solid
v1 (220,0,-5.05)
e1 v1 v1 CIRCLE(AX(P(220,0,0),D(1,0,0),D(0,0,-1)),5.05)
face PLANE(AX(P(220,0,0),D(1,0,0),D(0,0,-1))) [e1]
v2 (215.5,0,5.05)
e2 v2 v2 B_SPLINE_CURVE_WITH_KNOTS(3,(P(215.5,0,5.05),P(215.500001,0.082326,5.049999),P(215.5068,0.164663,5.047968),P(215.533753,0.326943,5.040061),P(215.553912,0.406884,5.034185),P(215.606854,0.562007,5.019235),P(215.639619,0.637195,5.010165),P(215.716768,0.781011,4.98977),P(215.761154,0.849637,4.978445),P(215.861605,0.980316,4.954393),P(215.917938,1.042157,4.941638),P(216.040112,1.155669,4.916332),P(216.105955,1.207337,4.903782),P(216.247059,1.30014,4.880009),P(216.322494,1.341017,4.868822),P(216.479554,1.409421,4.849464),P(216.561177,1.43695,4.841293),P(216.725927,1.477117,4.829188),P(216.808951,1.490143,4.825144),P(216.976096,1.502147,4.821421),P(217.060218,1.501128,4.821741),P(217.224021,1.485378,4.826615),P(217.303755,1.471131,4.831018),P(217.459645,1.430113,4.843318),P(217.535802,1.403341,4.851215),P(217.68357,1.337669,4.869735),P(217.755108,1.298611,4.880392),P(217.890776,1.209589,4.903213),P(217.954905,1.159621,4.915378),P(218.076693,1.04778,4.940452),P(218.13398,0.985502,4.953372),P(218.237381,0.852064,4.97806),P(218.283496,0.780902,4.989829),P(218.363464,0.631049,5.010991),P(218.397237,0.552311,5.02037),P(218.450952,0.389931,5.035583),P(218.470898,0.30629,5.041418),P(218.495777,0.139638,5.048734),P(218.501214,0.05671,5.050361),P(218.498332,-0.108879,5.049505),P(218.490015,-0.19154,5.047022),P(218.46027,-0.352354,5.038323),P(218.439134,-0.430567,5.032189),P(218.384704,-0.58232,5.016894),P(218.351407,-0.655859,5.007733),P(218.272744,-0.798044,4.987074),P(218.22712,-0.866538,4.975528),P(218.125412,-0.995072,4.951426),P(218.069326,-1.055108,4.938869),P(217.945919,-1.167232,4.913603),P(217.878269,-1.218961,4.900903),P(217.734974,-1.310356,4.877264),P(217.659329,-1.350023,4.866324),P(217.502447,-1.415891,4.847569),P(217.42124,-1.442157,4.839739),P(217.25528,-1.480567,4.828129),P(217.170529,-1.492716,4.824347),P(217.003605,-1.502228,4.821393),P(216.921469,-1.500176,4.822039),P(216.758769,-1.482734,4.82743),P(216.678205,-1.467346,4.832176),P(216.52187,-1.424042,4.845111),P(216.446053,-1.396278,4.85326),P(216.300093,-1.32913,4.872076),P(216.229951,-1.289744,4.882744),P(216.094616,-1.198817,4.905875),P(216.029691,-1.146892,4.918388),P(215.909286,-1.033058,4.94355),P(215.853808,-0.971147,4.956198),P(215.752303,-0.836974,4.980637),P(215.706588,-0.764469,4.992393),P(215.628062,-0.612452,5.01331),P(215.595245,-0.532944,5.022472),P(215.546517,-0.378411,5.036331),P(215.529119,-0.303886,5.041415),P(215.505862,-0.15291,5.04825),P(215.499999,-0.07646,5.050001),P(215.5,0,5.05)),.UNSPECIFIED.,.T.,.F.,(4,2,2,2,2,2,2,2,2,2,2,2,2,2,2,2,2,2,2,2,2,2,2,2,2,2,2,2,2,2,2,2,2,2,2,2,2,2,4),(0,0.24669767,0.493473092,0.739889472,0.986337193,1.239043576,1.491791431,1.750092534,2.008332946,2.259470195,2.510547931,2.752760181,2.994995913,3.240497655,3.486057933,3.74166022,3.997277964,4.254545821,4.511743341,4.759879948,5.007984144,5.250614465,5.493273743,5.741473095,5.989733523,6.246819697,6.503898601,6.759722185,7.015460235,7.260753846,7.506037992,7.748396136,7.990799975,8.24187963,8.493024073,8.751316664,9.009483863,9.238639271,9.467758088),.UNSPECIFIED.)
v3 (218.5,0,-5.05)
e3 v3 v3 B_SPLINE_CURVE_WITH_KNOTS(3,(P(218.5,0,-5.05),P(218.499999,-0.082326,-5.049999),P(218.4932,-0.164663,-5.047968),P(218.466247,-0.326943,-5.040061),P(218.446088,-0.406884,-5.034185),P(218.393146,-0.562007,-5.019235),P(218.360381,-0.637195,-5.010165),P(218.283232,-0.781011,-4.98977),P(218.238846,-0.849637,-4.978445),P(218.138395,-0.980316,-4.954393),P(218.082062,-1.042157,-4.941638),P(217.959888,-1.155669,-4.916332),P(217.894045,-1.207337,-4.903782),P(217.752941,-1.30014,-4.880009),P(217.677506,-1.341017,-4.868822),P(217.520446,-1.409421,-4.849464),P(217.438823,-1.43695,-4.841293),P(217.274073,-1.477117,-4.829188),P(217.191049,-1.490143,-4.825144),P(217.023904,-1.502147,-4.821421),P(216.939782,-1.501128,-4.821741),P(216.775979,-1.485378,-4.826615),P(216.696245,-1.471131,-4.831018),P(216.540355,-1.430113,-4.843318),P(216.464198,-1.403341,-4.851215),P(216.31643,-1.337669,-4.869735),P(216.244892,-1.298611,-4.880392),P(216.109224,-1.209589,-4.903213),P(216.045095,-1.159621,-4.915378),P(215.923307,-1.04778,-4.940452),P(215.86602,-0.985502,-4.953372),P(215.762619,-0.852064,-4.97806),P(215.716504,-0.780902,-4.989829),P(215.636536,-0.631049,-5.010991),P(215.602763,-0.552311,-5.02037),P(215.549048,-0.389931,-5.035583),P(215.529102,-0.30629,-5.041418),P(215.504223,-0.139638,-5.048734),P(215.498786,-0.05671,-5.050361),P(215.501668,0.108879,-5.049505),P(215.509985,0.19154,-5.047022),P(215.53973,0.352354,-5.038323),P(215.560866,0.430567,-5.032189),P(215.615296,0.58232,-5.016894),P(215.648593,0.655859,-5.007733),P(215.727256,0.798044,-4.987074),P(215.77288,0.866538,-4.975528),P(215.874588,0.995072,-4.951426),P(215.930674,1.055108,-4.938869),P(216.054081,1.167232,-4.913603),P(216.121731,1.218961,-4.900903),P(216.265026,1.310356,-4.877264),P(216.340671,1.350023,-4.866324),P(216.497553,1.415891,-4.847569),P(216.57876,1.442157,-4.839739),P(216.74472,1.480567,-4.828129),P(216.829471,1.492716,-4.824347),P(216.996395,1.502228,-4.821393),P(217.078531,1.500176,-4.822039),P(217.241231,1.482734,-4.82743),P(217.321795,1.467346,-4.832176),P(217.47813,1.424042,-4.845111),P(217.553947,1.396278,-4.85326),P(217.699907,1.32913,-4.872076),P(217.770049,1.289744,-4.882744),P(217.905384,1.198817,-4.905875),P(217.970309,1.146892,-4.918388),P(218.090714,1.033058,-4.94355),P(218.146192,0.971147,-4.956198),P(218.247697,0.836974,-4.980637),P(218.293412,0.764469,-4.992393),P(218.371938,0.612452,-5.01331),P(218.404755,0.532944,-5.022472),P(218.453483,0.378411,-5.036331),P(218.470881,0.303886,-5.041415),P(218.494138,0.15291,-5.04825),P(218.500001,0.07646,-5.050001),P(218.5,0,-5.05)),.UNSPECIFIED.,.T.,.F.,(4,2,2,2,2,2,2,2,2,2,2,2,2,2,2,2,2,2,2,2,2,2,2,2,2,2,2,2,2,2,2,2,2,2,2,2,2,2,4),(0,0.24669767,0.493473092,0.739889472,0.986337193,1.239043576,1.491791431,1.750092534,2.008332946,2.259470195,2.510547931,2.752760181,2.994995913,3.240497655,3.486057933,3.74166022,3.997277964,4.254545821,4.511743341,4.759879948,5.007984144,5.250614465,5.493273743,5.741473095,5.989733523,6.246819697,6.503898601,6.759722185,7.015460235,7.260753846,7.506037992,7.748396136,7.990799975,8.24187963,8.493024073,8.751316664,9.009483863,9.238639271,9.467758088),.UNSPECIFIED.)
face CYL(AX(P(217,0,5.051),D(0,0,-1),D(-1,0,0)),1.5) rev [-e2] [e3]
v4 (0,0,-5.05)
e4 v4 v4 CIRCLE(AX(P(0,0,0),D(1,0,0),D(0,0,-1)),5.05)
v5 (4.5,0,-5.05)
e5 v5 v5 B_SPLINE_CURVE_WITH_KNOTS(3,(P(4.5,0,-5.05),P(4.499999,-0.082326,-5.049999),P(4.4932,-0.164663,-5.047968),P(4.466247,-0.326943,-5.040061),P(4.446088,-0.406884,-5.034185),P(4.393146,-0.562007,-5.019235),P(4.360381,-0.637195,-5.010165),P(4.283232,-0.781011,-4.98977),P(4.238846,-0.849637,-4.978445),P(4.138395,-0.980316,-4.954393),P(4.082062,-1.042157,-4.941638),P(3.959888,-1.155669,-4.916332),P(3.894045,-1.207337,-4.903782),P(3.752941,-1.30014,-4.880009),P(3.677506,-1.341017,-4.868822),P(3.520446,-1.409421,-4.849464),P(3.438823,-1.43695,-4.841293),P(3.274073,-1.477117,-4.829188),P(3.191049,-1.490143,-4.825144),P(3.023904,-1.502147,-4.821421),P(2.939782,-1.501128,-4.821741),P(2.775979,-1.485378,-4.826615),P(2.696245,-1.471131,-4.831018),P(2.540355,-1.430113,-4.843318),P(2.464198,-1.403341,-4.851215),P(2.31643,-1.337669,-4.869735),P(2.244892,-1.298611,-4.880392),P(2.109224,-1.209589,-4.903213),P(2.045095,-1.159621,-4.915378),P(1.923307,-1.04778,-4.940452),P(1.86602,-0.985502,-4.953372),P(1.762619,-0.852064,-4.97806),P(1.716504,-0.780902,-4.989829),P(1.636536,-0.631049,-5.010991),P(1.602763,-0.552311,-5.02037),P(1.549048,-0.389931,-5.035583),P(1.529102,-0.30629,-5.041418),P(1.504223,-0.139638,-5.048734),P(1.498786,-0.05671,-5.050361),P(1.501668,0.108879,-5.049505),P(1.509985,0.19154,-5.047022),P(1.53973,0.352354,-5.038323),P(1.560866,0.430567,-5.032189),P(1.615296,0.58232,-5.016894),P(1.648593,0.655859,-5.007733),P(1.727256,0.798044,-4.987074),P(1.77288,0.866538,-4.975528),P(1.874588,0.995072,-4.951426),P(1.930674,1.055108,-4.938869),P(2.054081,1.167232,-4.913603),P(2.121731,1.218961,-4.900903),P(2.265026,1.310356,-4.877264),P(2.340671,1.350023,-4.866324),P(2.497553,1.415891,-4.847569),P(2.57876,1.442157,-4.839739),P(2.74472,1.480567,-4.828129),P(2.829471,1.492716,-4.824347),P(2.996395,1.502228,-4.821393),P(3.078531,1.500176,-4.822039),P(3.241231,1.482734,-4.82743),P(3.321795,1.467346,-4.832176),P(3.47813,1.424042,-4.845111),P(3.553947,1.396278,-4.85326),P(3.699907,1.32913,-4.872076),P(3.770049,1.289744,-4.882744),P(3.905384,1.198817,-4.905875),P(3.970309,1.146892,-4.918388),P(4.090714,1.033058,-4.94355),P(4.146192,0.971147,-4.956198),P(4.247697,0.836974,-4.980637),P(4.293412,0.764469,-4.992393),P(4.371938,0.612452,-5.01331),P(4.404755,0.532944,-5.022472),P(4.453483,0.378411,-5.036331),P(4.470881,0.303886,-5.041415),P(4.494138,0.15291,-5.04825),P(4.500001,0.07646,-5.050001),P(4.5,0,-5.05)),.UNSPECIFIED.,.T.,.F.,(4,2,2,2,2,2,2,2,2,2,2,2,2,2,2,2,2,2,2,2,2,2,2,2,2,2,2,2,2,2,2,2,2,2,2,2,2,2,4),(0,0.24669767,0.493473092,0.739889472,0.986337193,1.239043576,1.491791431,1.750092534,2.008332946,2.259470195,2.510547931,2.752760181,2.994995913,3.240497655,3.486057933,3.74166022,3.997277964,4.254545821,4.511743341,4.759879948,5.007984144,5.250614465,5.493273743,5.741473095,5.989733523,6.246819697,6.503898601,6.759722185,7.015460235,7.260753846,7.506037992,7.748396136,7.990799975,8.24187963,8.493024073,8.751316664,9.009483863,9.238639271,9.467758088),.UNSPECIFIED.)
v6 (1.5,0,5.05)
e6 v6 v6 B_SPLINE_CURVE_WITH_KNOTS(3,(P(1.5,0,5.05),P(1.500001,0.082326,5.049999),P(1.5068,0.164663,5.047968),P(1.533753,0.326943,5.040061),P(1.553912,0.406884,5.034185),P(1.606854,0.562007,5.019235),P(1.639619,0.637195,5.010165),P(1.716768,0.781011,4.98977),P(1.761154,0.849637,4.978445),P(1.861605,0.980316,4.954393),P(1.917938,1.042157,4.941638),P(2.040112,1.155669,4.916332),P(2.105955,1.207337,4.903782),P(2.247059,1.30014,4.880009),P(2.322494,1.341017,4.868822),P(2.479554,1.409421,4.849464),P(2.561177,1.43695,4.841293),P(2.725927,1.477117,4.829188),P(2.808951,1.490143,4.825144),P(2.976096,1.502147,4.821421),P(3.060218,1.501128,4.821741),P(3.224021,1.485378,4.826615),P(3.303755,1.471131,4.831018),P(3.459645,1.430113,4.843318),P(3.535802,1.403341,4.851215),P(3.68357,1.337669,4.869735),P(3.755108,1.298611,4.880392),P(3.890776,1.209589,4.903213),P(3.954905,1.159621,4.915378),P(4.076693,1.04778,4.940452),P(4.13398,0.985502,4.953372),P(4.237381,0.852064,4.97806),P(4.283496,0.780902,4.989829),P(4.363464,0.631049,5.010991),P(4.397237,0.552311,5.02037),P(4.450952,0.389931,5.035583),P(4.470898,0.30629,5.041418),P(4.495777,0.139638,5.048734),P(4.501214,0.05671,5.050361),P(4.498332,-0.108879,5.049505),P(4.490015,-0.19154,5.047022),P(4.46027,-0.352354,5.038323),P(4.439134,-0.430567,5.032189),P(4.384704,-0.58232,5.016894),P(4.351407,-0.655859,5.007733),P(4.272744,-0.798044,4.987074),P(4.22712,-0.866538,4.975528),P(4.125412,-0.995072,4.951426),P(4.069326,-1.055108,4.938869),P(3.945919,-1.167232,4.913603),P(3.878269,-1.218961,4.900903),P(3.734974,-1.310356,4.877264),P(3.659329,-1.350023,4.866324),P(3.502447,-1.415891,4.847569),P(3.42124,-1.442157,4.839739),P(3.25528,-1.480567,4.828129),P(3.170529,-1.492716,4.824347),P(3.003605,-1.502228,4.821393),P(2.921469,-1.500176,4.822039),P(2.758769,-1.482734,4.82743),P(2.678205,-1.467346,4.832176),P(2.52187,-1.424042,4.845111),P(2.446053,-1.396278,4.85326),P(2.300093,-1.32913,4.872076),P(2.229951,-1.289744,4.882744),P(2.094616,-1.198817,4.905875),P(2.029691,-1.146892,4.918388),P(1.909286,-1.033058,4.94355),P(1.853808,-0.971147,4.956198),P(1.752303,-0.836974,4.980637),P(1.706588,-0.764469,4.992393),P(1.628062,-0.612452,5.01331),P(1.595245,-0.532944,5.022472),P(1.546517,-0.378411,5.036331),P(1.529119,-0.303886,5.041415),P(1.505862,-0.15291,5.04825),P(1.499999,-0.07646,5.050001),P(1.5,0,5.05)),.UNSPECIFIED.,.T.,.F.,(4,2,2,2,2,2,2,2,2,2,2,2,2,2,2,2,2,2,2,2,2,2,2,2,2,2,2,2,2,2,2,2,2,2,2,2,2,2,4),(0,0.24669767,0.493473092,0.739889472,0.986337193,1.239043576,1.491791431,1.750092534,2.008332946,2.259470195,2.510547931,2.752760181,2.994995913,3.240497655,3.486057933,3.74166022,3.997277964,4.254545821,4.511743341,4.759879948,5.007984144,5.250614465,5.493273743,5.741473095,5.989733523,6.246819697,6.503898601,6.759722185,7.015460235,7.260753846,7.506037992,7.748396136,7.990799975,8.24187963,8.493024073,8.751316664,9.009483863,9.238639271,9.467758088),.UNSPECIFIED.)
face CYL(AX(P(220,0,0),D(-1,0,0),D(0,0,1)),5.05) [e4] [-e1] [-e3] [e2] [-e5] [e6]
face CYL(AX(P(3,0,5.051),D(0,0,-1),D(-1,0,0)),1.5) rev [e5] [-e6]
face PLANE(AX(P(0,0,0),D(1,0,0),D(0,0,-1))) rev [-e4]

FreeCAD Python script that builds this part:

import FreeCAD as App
import Part
import Sketcher
Q = App.Units.Quantity

doc = App.newDocument("Part")
body = doc.addObject("PartDesign::Body", "Body")

# Sketch on YZ plane
sketch1 = body.newObject("Sketcher::SketchObject", "Sketch")
sketch1.AttachmentSupport = (doc.getObject("YZ_Plane"), [""])
sketch1.MapMode = "FlatFace"
sketch1.addGeometry(Part.Circle(App.Vector(0, 0, 0), App.Vector(0, 0, 1), 5), False)
sketch1.addConstraint([
    Sketcher.Constraint("Coincident", 0, 3, -1, 1),
    Sketcher.Constraint("Diameter", 0, Q("10.1 mm")),
])
pad1 = body.newObject("PartDesign::Pad", "Pad")
pad1.Profile = sketch1
pad1.Length = 220

# Sketch on XY plane
sketch2 = body.newObject("Sketcher::SketchObject", "Sketch001")
sketch2.AttachmentSupport = (doc.getObject("XY_Plane"), [""])
sketch2.MapMode = "FlatFace"
sketch2.addGeometry(Part.Circle(App.Vector(3, 0, 0), App.Vector(0, 0, 1), 1.5), False)
sketch2.addConstraint([
    Sketcher.Constraint("PointOnObject", 0, 3, -1),
    Sketcher.Constraint("Diameter", 0, Q("3 mm")),
    Sketcher.Constraint("DistanceX", -1, 1, 0, 3, Q("3 mm")),
])
pocket1 = body.newObject("PartDesign::Pocket", "Pocket")
pocket1.Profile = sketch2
pocket1.Length = 5.05

# Sketch on XY plane
sketch3 = body.newObject("Sketcher::SketchObject", "Sketch002")
sketch3.AttachmentSupport = (doc.getObject("XY_Plane"), [""])
sketch3.MapMode = "FlatFace"
sketch3.addGeometry(Part.Circle(App.Vector(217, 0, 0), App.Vector(0, 0, 1), 1.5), False)
sketch3.addConstraint([
    Sketcher.Constraint("PointOnObject", 0, 3, -1),
    Sketcher.Constraint("Diameter", 0, Q("3 mm")),
    Sketcher.Constraint("DistanceX", -1, 1, 0, 3, Q("217 mm")),
])
pocket2 = body.newObject("PartDesign::Pocket", "Pocket001")
pocket2.Profile = sketch3
pocket2.Length = 5.05

# Sketch on XY plane
sketch4 = body.newObject("Sketcher::SketchObject", "Sketch003")
sketch4.AttachmentSupport = (doc.getObject("XY_Plane"), [""])
sketch4.MapMode = "FlatFace"
sketch4.addGeometry(Part.Circle(App.Vector(3, 0, 0), App.Vector(0, 0, 1), 1.5), False)
sketch4.addConstraint([
    Sketcher.Constraint("PointOnObject", 0, 3, -1),
    Sketcher.Constraint("Diameter", 0, Q("3 mm")),
    Sketcher.Constraint("DistanceX", -1, 1, 0, 3, Q("3 mm")),
])
pocket3 = body.newObject("PartDesign::Pocket", "Pocket002")
pocket3.Profile = sketch4
pocket3.Type = "UpToFirst"
pocket3.Reversed = True

# Sketch on XY plane
sketch5 = body.newObject("Sketcher::SketchObject", "Sketch004")
sketch5.AttachmentSupport = (doc.getObject("XY_Plane"), [""])
sketch5.MapMode = "FlatFace"
sketch5.addGeometry(Part.Circle(App.Vector(217, 0, 0), App.Vector(0, 0, 1), 1.5), False)
sketch5.addConstraint([
    Sketcher.Constraint("PointOnObject", 0, 3, -1),
    Sketcher.Constraint("Diameter", 0, Q("3 mm")),
    Sketcher.Constraint("DistanceX", -1, 1, 0, 3, Q("217 mm")),
])
pocket4 = body.newObject("PartDesign::Pocket", "Pocket003")
pocket4.Profile = sketch5
pocket4.Type = "UpToFirst"
pocket4.Reversed = True

doc.recompute()
